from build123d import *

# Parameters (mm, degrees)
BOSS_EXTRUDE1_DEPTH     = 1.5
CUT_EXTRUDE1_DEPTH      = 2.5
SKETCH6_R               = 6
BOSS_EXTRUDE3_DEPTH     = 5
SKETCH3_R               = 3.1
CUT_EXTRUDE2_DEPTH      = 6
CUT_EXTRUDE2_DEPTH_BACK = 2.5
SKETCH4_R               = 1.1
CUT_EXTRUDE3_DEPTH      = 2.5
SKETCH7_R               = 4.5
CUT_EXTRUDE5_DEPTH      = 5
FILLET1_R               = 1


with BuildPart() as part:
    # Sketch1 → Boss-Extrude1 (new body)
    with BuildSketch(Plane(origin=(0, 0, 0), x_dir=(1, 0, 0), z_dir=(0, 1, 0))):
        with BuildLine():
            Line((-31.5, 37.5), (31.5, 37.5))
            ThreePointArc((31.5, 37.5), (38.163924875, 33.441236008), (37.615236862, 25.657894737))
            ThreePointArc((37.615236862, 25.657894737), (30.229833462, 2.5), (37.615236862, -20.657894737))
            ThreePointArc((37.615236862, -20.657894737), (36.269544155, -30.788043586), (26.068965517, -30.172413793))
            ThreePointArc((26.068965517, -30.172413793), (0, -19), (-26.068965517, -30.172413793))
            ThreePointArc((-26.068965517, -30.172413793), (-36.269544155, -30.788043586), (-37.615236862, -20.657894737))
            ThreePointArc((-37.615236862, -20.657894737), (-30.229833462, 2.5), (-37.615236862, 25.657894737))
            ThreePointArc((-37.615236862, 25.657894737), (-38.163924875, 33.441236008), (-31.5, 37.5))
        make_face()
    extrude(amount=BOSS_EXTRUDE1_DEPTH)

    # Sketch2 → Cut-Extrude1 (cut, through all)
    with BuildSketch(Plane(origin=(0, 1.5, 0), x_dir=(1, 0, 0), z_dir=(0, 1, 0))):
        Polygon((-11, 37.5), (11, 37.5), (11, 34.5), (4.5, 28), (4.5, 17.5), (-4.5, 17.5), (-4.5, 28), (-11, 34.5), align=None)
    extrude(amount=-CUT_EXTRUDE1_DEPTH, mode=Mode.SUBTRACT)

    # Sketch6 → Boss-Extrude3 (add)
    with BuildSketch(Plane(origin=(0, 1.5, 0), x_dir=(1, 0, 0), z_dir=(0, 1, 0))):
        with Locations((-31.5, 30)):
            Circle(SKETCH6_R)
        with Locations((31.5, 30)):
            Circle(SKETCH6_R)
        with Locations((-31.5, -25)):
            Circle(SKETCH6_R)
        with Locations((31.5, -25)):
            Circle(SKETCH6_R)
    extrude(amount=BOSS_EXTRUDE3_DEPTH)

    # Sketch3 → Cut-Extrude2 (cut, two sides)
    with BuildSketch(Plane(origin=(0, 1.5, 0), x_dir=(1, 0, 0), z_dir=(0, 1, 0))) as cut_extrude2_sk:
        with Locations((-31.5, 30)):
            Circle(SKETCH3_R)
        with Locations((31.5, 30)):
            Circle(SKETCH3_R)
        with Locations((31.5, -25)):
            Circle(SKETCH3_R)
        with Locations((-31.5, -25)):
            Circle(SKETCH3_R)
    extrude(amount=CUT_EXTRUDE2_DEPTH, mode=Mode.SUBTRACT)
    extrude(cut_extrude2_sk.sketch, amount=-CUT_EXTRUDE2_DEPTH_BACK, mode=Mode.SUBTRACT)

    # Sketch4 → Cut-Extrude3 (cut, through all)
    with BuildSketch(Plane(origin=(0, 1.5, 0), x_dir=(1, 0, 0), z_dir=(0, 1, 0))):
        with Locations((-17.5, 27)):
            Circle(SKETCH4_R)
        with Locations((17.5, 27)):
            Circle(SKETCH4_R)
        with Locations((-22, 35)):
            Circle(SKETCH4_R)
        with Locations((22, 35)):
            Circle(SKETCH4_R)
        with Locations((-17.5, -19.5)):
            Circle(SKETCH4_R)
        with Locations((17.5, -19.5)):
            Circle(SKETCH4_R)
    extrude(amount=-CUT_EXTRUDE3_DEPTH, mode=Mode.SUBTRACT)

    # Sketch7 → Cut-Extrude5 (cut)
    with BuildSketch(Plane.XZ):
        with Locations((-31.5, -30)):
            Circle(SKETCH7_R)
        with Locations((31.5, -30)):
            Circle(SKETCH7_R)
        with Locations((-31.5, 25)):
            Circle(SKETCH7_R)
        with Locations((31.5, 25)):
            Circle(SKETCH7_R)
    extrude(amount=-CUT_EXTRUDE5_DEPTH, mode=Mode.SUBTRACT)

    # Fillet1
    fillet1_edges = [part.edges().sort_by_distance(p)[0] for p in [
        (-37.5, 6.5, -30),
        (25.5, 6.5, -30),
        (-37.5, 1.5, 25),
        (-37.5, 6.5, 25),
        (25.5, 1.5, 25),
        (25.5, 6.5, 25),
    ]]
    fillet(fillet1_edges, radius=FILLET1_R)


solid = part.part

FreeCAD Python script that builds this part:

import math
import FreeCAD as App
import Part
import Sketcher


def edges_at(feature, points):
    """Names of the edges that pass closest to the given points."""
    edges = feature.Shape.Edges
    near = lambda p: min(range(len(edges)), key=lambda i: edges[i].distToShape(Part.Vertex(*p))[0])
    return sorted({f"Edge{near(p) + 1}" for p in points})

doc = App.newDocument("Part")
params = doc.addObject("Spreadsheet::Sheet", "Params")
for row, (alias, value) in enumerate([
    ("sketch1_radius", "40 mm"),
    ("sketch1_radius2", "36 mm"),
    ("sketch1_radius3", "7.5 mm"),
    ("sketch1_width", "63 mm"),
    ("pad1_length", "1.5 mm"),
    ("sketch2_width", "22 mm"),
    ("sketch2_width2", "9 mm"),
    ("sketch2_height", "3 mm"),
    ("sketch2_height2", "10.5 mm"),
    ("sketch3_diameter", "12 mm"),
    ("pad2_length", "5 mm"),
    ("sketch4_diameter", "6.2 mm"),
    ("sketch5_diameter", "2.2 mm"),
    ("sketch6_diameter", "9 mm"),
    ("pocket4_length", "5 mm"),
    ("fillet_radius", "1 mm"),
], start=1):
    params.set(f"A{row}", alias)
    params.set(f"B{row}", "=" + value)
    params.setAlias(f"B{row}", alias)

body = doc.addObject("PartDesign::Body", "Body")

# Sketch on XZ plane
sketch1 = body.newObject("Sketcher::SketchObject", "Sketch")
sketch1.AttachmentSupport = (doc.getObject("XZ_Plane"), [""])
sketch1.MapMode = "FlatFace"
sketch1.addGeometry(Part.LineSegment(App.Vector(31.5, -37.5, 0), App.Vector(-31.5, -37.5, 0)), False)
sketch1.addGeometry(Part.ArcOfCircle(Part.Circle(App.Vector(-31.5, -30, 0), App.Vector(0, 0, 1), 7.5), math.radians(144.62346), math.radians(270)), False)
sketch1.addGeometry(Part.ArcOfCircle(Part.Circle(App.Vector(-70.229833, -2.5, 0), App.Vector(0, 0, 1), 40), math.radians(-35.37654), math.radians(35.37654)), False)
sketch1.addGeometry(Part.ArcOfCircle(Part.Circle(App.Vector(-31.5, 25, 0), App.Vector(0, 0, 1), 7.5), math.radians(43.602819), math.radians(215.37654)), False)
sketch1.addGeometry(Part.ArcOfCircle(Part.Circle(App.Vector(0, 55, 0), App.Vector(0, 0, 1), 36), math.radians(-136.397181), math.radians(-43.602819)), False)
sketch1.addGeometry(Part.ArcOfCircle(Part.Circle(App.Vector(31.5, 25, 0), App.Vector(0, 0, 1), 7.5), math.radians(-35.37654), math.radians(136.397181)), False)
sketch1.addGeometry(Part.ArcOfCircle(Part.Circle(App.Vector(70.229833, -2.5, 0), App.Vector(0, 0, 1), 40), math.radians(144.62346), math.radians(215.37654)), False)
sketch1.addGeometry(Part.ArcOfCircle(Part.Circle(App.Vector(31.5, -30, 0), App.Vector(0, 0, 1), 7.5), math.radians(-90), math.radians(35.37654)), False)
sketch1.addConstraint(Sketcher.Constraint("Tangent", 0, 2, 1, 2))
sketch1.addConstraint(Sketcher.Constraint("Tangent", 1, 1, 2, 1))
sketch1.addConstraint(Sketcher.Constraint("Tangent", 2, 2, 3, 2))
sketch1.addConstraint(Sketcher.Constraint("Tangent", 3, 1, 4, 1))
sketch1.addConstraint(Sketcher.Constraint("Tangent", 4, 2, 5, 2))
sketch1.addConstraint(Sketcher.Constraint("Tangent", 5, 1, 6, 1))
sketch1.addConstraint(Sketcher.Constraint("Tangent", 6, 2, 7, 2))
sketch1.addConstraint(Sketcher.Constraint("Tangent", 7, 1, 0, 1))
sketch1.addConstraint(Sketcher.Constraint("Horizontal", 0))
sketch1.addConstraint(Sketcher.Constraint("Equal", 1, 3))
sketch1.addConstraint(Sketcher.Constraint("Equal", 3, 5))
sketch1.addConstraint(Sketcher.Constraint("Equal", 2, 6))
sketch1.addConstraint(Sketcher.Constraint("Equal", 5, 7))
sketch1.addConstraint(Sketcher.Constraint("Symmetric", 3, 3, 5, 3, -2))
sketch1.addConstraint(Sketcher.Constraint("Horizontal", 2, 3, 6, 3))
sketch1.addConstraint(Sketcher.Constraint("Vertical", 1, 3, 3, 3))
sketch1.addConstraint(Sketcher.Constraint("Radius", 2, 40.0))
sketch1.addConstraint(Sketcher.Constraint("Radius", 4, 36.0))
sketch1.addConstraint(Sketcher.Constraint("Radius", 1, 7.5))
sketch1.addConstraint(Sketcher.Constraint("DistanceX", 0, 2, 0, 1, 63.0))
sketch1.addConstraint(Sketcher.Constraint("DistanceY", 1, 3, -1, 1, 30.0))
sketch1.addConstraint(Sketcher.Constraint("DistanceY", -1, 1, 3, 3, 25.0))
sketch1.setExpression("Constraints[16]", "Params.sketch1_radius")
sketch1.setExpression("Constraints[17]", "Params.sketch1_radius2")
sketch1.setExpression("Constraints[18]", "Params.sketch1_radius3")
sketch1.setExpression("Constraints[19]", "Params.sketch1_width")
pad1 = body.newObject("PartDesign::Pad", "Pad")
pad1.Profile = sketch1
pad1.setExpression("Length", "Params.pad1_length")
pad1.Reversed = True

# Sketch on XZ plane
sketch2 = body.newObject("Sketcher::SketchObject", "Sketch001")
sketch2.AttachmentSupport = (doc.getObject("XZ_Plane"), [""])
sketch2.MapMode = "FlatFace"
sketch2.AttachmentOffset = App.Placement(App.Vector(0, 0, -1.5), App.Rotation())
sketch2.addGeometry(Part.LineSegment(App.Vector(11, -37.5, 0), App.Vector(-11, -37.5, 0)), False)
sketch2.addGeometry(Part.LineSegment(App.Vector(-11, -37.5, 0), App.Vector(-11, -34.5, 0)), False)
sketch2.addGeometry(Part.LineSegment(App.Vector(-11, -34.5, 0), App.Vector(-4.5, -28, 0)), False)
sketch2.addGeometry(Part.LineSegment(App.Vector(-4.5, -28, 0), App.Vector(-4.5, -17.5, 0)), False)
sketch2.addGeometry(Part.LineSegment(App.Vector(-4.5, -17.5, 0), App.Vector(4.5, -17.5, 0)), False)
sketch2.addGeometry(Part.LineSegment(App.Vector(4.5, -17.5, 0), App.Vector(4.5, -28, 0)), False)
sketch2.addGeometry(Part.LineSegment(App.Vector(4.5, -28, 0), App.Vector(11, -34.5, 0)), False)
sketch2.addGeometry(Part.LineSegment(App.Vector(11, -34.5, 0), App.Vector(11, -37.5, 0)), False)
sketch2.addConstraint(Sketcher.Constraint("Coincident", 0, 2, 1, 1))
sketch2.addConstraint(Sketcher.Constraint("Coincident", 1, 2, 2, 1))
sketch2.addConstraint(Sketcher.Constraint("Coincident", 2, 2, 3, 1))
sketch2.addConstraint(Sketcher.Constraint("Coincident", 3, 2, 4, 1))
sketch2.addConstraint(Sketcher.Constraint("Coincident", 4, 2, 5, 1))
sketch2.addConstraint(Sketcher.Constraint("Coincident", 5, 2, 6, 1))
sketch2.addConstraint(Sketcher.Constraint("Coincident", 6, 2, 7, 1))
sketch2.addConstraint(Sketcher.Constraint("Coincident", 7, 2, 0, 1))
sketch2.addConstraint(Sketcher.Constraint("Horizontal", 0))
sketch2.addConstraint(Sketcher.Constraint("Vertical", 1))
sketch2.addConstraint(Sketcher.Constraint("Vertical", 3))
sketch2.addConstraint(Sketcher.Constraint("Horizontal", 4))
sketch2.addConstraint(Sketcher.Constraint("Vertical", 5))
sketch2.addConstraint(Sketcher.Constraint("Vertical", 7))
sketch2.addConstraint(Sketcher.Constraint("Symmetric", 2, 2, 5, 2, -2))
sketch2.addConstraint(Sketcher.Constraint("Symmetric", 1, 2, 6, 2, -2))
sketch2.addConstraint(Sketcher.Constraint("Perpendicular", 2, 6))
sketch2.addConstraint(Sketcher.Constraint("DistanceX", 0, 2, 0, 1, 22.0))
sketch2.addConstraint(Sketcher.Constraint("DistanceX", 4, 1, 4, 2, 9.0))
sketch2.addConstraint(Sketcher.Constraint("DistanceY", 1, 1, 1, 2, 3.0))
sketch2.addConstraint(Sketcher.Constraint("DistanceY", 3, 1, 3, 2, 10.5))
sketch2.addConstraint(Sketcher.Constraint("DistanceY", 2, 2, -1, 1, 28.0))
sketch2.setExpression("Constraints[17]", "Params.sketch2_width")
sketch2.setExpression("Constraints[18]", "Params.sketch2_width2")
sketch2.setExpression("Constraints[19]", "Params.sketch2_height")
sketch2.setExpression("Constraints[20]", "Params.sketch2_height2")
pocket1 = body.newObject("PartDesign::Pocket", "Pocket")
pocket1.Profile = sketch2
pocket1.Type = "ThroughAll"
pocket1.Reversed = True

# Sketch on XZ plane
sketch3 = body.newObject("Sketcher::SketchObject", "Sketch002")
sketch3.AttachmentSupport = (doc.getObject("XZ_Plane"), [""])
sketch3.MapMode = "FlatFace"
sketch3.AttachmentOffset = App.Placement(App.Vector(0, 0, -1.5), App.Rotation())
sketch3.addGeometry(Part.Circle(App.Vector(-31.5, -30, 0), App.Vector(0, 0, 1), 6), False)
sketch3.addGeometry(Part.Circle(App.Vector(31.5, -30, 0), App.Vector(0, 0, 1), 6), False)
sketch3.addGeometry(Part.Circle(App.Vector(-31.5, 25, 0), App.Vector(0, 0, 1), 6), False)
sketch3.addGeometry(Part.Circle(App.Vector(31.5, 25, 0), App.Vector(0, 0, 1), 6), False)
sketch3.addConstraint(Sketcher.Constraint("Equal", 0, 1))
sketch3.addConstraint(Sketcher.Constraint("Equal", 1, 2))
sketch3.addConstraint(Sketcher.Constraint("Equal", 2, 3))
sketch3.addConstraint(Sketcher.Constraint("Symmetric", 0, 3, 1, 3, -2))
sketch3.addConstraint(Sketcher.Constraint("Symmetric", 2, 3, 3, 3, -2))
sketch3.addConstraint(Sketcher.Constraint("Vertical", 0, 3, 2, 3))
sketch3.addConstraint(Sketcher.Constraint("Diameter", 0, 12.0))
sketch3.addConstraint(Sketcher.Constraint("DistanceY", 0, 3, -1, 1, 30.0))
sketch3.addConstraint(Sketcher.Constraint("DistanceY", -1, 1, 2, 3, 25.0))
sketch3.addConstraint(Sketcher.Constraint("DistanceX", 0, 3, 1, 3, 63.0))
sketch3.setExpression("Constraints[6]", "Params.sketch3_diameter")
pad2 = body.newObject("PartDesign::Pad", "Pad001")
pad2.Profile = sketch3
pad2.setExpression("Length", "Params.pad2_length")
pad2.Reversed = True

# Sketch on XZ plane
sketch4 = body.newObject("Sketcher::SketchObject", "Sketch003")
sketch4.AttachmentSupport = (doc.getObject("XZ_Plane"), [""])
sketch4.MapMode = "FlatFace"
sketch4.AttachmentOffset = App.Placement(App.Vector(0, 0, -1.5), App.Rotation())
sketch4.addGeometry(Part.Circle(App.Vector(-31.5, -30, 0), App.Vector(0, 0, 1), 3.1), False)
sketch4.addGeometry(Part.Circle(App.Vector(31.5, -30, 0), App.Vector(0, 0, 1), 3.1), False)
sketch4.addGeometry(Part.Circle(App.Vector(31.5, 25, 0), App.Vector(0, 0, 1), 3.1), False)
sketch4.addGeometry(Part.Circle(App.Vector(-31.5, 25, 0), App.Vector(0, 0, 1), 3.1), False)
sketch4.addConstraint(Sketcher.Constraint("Equal", 0, 1))
sketch4.addConstraint(Sketcher.Constraint("Equal", 1, 2))
sketch4.addConstraint(Sketcher.Constraint("Equal", 2, 3))
sketch4.addConstraint(Sketcher.Constraint("Symmetric", 0, 3, 1, 3, -2))
sketch4.addConstraint(Sketcher.Constraint("Symmetric", 2, 3, 3, 3, -2))
sketch4.addConstraint(Sketcher.Constraint("Vertical", 1, 3, 2, 3))
sketch4.addConstraint(Sketcher.Constraint("Diameter", 0, 6.2))
sketch4.addConstraint(Sketcher.Constraint("DistanceY", 0, 3, -1, 1, 30.0))
sketch4.addConstraint(Sketcher.Constraint("DistanceY", -1, 1, 2, 3, 25.0))
sketch4.addConstraint(Sketcher.Constraint("DistanceX", 0, 3, 1, 3, 63.0))
sketch4.setExpression("Constraints[6]", "Params.sketch4_diameter")
pocket2 = body.newObject("PartDesign::Pocket", "Pocket001")
pocket2.Profile = sketch4
pocket2.Type = "ThroughAll"
pocket2.Midplane = True

# Sketch on XZ plane
sketch5 = body.newObject("Sketcher::SketchObject", "Sketch004")
sketch5.AttachmentSupport = (doc.getObject("XZ_Plane"), [""])
sketch5.MapMode = "FlatFace"
sketch5.AttachmentOffset = App.Placement(App.Vector(0, 0, -1.5), App.Rotation())
sketch5.addGeometry(Part.Circle(App.Vector(-17.5, -27, 0), App.Vector(0, 0, 1), 1.1), False)
sketch5.addGeometry(Part.Circle(App.Vector(17.5, -27, 0), App.Vector(0, 0, 1), 1.1), False)
sketch5.addGeometry(Part.Circle(App.Vector(-22, -35, 0), App.Vector(0, 0, 1), 1.1), False)
sketch5.addGeometry(Part.Circle(App.Vector(22, -35, 0), App.Vector(0, 0, 1), 1.1), False)
sketch5.addGeometry(Part.Circle(App.Vector(-17.5, 19.5, 0), App.Vector(0, 0, 1), 1.1), False)
sketch5.addGeometry(Part.Circle(App.Vector(17.5, 19.5, 0), App.Vector(0, 0, 1), 1.1), False)
sketch5.addConstraint(Sketcher.Constraint("Equal", 0, 1))
sketch5.addConstraint(Sketcher.Constraint("Equal", 1, 2))
sketch5.addConstraint(Sketcher.Constraint("Equal", 2, 3))
sketch5.addConstraint(Sketcher.Constraint("Equal", 3, 4))
sketch5.addConstraint(Sketcher.Constraint("Equal", 4, 5))
sketch5.addConstraint(Sketcher.Constraint("Symmetric", 0, 3, 1, 3, -2))
sketch5.addConstraint(Sketcher.Constraint("Symmetric", 2, 3, 3, 3, -2))
sketch5.addConstraint(Sketcher.Constraint("Symmetric", 4, 3, 5, 3, -2))
sketch5.addConstraint(Sketcher.Constraint("Vertical", 0, 3, 4, 3))
sketch5.addConstraint(Sketcher.Constraint("Diameter", 0, 2.2))
sketch5.addConstraint(Sketcher.Constraint("DistanceY", 0, 3, -1, 1, 27.0))
sketch5.addConstraint(Sketcher.Constraint("DistanceX", 2, 3, -1, 1, 22.0))
sketch5.addConstraint(Sketcher.Constraint("DistanceY", 2, 3, -1, 1, 35.0))
sketch5.addConstraint(Sketcher.Constraint("DistanceX", 0, 3, 1, 3, 35.0))
sketch5.addConstraint(Sketcher.Constraint("DistanceY", -1, 1, 4, 3, 19.5))
sketch5.setExpression("Constraints[9]", "Params.sketch5_diameter")
pocket3 = body.newObject("PartDesign::Pocket", "Pocket002")
pocket3.Profile = sketch5
pocket3.Type = "ThroughAll"
pocket3.Reversed = True

# Sketch on XZ plane
sketch6 = body.newObject("Sketcher::SketchObject", "Sketch005")
sketch6.AttachmentSupport = (doc.getObject("XZ_Plane"), [""])
sketch6.MapMode = "FlatFace"
sketch6.addGeometry(Part.Circle(App.Vector(-31.5, -30, 0), App.Vector(0, 0, 1), 4.5), False)
sketch6.addGeometry(Part.Circle(App.Vector(31.5, -30, 0), App.Vector(0, 0, 1), 4.5), False)
sketch6.addGeometry(Part.Circle(App.Vector(-31.5, 25, 0), App.Vector(0, 0, 1), 4.5), False)
sketch6.addGeometry(Part.Circle(App.Vector(31.5, 25, 0), App.Vector(0, 0, 1), 4.5), False)
sketch6.addConstraint(Sketcher.Constraint("Equal", 0, 1))
sketch6.addConstraint(Sketcher.Constraint("Equal", 1, 2))
sketch6.addConstraint(Sketcher.Constraint("Equal", 2, 3))
sketch6.addConstraint(Sketcher.Constraint("Symmetric", 0, 3, 1, 3, -2))
sketch6.addConstraint(Sketcher.Constraint("Symmetric", 2, 3, 3, 3, -2))
sketch6.addConstraint(Sketcher.Constraint("Vertical", 0, 3, 2, 3))
sketch6.addConstraint(Sketcher.Constraint("Diameter", 0, 9.0))
sketch6.addConstraint(Sketcher.Constraint("DistanceY", 0, 3, -1, 1, 30.0))
sketch6.addConstraint(Sketcher.Constraint("DistanceY", -1, 1, 2, 3, 25.0))
sketch6.addConstraint(Sketcher.Constraint("DistanceX", 0, 3, 1, 3, 63.0))
sketch6.setExpression("Constraints[6]", "Params.sketch6_diameter")
pocket4 = body.newObject("PartDesign::Pocket", "Pocket003")
pocket4.Profile = sketch6
pocket4.setExpression("Length", "Params.pocket4_length")
doc.recompute()

fillet = body.newObject("PartDesign::Fillet", "Fillet")
fillet.Base = (pocket4, edges_at(pocket4, [
    (-37.5, 6.5, -30),
    (25.5, 6.5, -30),
    (-37.5, 1.5, 25),
    (-37.5, 6.5, 25),
    (25.5, 1.5, 25),
    (25.5, 6.5, 25),
]))
fillet.setExpression("Radius", "Params.fillet_radius")

doc.recompute()
